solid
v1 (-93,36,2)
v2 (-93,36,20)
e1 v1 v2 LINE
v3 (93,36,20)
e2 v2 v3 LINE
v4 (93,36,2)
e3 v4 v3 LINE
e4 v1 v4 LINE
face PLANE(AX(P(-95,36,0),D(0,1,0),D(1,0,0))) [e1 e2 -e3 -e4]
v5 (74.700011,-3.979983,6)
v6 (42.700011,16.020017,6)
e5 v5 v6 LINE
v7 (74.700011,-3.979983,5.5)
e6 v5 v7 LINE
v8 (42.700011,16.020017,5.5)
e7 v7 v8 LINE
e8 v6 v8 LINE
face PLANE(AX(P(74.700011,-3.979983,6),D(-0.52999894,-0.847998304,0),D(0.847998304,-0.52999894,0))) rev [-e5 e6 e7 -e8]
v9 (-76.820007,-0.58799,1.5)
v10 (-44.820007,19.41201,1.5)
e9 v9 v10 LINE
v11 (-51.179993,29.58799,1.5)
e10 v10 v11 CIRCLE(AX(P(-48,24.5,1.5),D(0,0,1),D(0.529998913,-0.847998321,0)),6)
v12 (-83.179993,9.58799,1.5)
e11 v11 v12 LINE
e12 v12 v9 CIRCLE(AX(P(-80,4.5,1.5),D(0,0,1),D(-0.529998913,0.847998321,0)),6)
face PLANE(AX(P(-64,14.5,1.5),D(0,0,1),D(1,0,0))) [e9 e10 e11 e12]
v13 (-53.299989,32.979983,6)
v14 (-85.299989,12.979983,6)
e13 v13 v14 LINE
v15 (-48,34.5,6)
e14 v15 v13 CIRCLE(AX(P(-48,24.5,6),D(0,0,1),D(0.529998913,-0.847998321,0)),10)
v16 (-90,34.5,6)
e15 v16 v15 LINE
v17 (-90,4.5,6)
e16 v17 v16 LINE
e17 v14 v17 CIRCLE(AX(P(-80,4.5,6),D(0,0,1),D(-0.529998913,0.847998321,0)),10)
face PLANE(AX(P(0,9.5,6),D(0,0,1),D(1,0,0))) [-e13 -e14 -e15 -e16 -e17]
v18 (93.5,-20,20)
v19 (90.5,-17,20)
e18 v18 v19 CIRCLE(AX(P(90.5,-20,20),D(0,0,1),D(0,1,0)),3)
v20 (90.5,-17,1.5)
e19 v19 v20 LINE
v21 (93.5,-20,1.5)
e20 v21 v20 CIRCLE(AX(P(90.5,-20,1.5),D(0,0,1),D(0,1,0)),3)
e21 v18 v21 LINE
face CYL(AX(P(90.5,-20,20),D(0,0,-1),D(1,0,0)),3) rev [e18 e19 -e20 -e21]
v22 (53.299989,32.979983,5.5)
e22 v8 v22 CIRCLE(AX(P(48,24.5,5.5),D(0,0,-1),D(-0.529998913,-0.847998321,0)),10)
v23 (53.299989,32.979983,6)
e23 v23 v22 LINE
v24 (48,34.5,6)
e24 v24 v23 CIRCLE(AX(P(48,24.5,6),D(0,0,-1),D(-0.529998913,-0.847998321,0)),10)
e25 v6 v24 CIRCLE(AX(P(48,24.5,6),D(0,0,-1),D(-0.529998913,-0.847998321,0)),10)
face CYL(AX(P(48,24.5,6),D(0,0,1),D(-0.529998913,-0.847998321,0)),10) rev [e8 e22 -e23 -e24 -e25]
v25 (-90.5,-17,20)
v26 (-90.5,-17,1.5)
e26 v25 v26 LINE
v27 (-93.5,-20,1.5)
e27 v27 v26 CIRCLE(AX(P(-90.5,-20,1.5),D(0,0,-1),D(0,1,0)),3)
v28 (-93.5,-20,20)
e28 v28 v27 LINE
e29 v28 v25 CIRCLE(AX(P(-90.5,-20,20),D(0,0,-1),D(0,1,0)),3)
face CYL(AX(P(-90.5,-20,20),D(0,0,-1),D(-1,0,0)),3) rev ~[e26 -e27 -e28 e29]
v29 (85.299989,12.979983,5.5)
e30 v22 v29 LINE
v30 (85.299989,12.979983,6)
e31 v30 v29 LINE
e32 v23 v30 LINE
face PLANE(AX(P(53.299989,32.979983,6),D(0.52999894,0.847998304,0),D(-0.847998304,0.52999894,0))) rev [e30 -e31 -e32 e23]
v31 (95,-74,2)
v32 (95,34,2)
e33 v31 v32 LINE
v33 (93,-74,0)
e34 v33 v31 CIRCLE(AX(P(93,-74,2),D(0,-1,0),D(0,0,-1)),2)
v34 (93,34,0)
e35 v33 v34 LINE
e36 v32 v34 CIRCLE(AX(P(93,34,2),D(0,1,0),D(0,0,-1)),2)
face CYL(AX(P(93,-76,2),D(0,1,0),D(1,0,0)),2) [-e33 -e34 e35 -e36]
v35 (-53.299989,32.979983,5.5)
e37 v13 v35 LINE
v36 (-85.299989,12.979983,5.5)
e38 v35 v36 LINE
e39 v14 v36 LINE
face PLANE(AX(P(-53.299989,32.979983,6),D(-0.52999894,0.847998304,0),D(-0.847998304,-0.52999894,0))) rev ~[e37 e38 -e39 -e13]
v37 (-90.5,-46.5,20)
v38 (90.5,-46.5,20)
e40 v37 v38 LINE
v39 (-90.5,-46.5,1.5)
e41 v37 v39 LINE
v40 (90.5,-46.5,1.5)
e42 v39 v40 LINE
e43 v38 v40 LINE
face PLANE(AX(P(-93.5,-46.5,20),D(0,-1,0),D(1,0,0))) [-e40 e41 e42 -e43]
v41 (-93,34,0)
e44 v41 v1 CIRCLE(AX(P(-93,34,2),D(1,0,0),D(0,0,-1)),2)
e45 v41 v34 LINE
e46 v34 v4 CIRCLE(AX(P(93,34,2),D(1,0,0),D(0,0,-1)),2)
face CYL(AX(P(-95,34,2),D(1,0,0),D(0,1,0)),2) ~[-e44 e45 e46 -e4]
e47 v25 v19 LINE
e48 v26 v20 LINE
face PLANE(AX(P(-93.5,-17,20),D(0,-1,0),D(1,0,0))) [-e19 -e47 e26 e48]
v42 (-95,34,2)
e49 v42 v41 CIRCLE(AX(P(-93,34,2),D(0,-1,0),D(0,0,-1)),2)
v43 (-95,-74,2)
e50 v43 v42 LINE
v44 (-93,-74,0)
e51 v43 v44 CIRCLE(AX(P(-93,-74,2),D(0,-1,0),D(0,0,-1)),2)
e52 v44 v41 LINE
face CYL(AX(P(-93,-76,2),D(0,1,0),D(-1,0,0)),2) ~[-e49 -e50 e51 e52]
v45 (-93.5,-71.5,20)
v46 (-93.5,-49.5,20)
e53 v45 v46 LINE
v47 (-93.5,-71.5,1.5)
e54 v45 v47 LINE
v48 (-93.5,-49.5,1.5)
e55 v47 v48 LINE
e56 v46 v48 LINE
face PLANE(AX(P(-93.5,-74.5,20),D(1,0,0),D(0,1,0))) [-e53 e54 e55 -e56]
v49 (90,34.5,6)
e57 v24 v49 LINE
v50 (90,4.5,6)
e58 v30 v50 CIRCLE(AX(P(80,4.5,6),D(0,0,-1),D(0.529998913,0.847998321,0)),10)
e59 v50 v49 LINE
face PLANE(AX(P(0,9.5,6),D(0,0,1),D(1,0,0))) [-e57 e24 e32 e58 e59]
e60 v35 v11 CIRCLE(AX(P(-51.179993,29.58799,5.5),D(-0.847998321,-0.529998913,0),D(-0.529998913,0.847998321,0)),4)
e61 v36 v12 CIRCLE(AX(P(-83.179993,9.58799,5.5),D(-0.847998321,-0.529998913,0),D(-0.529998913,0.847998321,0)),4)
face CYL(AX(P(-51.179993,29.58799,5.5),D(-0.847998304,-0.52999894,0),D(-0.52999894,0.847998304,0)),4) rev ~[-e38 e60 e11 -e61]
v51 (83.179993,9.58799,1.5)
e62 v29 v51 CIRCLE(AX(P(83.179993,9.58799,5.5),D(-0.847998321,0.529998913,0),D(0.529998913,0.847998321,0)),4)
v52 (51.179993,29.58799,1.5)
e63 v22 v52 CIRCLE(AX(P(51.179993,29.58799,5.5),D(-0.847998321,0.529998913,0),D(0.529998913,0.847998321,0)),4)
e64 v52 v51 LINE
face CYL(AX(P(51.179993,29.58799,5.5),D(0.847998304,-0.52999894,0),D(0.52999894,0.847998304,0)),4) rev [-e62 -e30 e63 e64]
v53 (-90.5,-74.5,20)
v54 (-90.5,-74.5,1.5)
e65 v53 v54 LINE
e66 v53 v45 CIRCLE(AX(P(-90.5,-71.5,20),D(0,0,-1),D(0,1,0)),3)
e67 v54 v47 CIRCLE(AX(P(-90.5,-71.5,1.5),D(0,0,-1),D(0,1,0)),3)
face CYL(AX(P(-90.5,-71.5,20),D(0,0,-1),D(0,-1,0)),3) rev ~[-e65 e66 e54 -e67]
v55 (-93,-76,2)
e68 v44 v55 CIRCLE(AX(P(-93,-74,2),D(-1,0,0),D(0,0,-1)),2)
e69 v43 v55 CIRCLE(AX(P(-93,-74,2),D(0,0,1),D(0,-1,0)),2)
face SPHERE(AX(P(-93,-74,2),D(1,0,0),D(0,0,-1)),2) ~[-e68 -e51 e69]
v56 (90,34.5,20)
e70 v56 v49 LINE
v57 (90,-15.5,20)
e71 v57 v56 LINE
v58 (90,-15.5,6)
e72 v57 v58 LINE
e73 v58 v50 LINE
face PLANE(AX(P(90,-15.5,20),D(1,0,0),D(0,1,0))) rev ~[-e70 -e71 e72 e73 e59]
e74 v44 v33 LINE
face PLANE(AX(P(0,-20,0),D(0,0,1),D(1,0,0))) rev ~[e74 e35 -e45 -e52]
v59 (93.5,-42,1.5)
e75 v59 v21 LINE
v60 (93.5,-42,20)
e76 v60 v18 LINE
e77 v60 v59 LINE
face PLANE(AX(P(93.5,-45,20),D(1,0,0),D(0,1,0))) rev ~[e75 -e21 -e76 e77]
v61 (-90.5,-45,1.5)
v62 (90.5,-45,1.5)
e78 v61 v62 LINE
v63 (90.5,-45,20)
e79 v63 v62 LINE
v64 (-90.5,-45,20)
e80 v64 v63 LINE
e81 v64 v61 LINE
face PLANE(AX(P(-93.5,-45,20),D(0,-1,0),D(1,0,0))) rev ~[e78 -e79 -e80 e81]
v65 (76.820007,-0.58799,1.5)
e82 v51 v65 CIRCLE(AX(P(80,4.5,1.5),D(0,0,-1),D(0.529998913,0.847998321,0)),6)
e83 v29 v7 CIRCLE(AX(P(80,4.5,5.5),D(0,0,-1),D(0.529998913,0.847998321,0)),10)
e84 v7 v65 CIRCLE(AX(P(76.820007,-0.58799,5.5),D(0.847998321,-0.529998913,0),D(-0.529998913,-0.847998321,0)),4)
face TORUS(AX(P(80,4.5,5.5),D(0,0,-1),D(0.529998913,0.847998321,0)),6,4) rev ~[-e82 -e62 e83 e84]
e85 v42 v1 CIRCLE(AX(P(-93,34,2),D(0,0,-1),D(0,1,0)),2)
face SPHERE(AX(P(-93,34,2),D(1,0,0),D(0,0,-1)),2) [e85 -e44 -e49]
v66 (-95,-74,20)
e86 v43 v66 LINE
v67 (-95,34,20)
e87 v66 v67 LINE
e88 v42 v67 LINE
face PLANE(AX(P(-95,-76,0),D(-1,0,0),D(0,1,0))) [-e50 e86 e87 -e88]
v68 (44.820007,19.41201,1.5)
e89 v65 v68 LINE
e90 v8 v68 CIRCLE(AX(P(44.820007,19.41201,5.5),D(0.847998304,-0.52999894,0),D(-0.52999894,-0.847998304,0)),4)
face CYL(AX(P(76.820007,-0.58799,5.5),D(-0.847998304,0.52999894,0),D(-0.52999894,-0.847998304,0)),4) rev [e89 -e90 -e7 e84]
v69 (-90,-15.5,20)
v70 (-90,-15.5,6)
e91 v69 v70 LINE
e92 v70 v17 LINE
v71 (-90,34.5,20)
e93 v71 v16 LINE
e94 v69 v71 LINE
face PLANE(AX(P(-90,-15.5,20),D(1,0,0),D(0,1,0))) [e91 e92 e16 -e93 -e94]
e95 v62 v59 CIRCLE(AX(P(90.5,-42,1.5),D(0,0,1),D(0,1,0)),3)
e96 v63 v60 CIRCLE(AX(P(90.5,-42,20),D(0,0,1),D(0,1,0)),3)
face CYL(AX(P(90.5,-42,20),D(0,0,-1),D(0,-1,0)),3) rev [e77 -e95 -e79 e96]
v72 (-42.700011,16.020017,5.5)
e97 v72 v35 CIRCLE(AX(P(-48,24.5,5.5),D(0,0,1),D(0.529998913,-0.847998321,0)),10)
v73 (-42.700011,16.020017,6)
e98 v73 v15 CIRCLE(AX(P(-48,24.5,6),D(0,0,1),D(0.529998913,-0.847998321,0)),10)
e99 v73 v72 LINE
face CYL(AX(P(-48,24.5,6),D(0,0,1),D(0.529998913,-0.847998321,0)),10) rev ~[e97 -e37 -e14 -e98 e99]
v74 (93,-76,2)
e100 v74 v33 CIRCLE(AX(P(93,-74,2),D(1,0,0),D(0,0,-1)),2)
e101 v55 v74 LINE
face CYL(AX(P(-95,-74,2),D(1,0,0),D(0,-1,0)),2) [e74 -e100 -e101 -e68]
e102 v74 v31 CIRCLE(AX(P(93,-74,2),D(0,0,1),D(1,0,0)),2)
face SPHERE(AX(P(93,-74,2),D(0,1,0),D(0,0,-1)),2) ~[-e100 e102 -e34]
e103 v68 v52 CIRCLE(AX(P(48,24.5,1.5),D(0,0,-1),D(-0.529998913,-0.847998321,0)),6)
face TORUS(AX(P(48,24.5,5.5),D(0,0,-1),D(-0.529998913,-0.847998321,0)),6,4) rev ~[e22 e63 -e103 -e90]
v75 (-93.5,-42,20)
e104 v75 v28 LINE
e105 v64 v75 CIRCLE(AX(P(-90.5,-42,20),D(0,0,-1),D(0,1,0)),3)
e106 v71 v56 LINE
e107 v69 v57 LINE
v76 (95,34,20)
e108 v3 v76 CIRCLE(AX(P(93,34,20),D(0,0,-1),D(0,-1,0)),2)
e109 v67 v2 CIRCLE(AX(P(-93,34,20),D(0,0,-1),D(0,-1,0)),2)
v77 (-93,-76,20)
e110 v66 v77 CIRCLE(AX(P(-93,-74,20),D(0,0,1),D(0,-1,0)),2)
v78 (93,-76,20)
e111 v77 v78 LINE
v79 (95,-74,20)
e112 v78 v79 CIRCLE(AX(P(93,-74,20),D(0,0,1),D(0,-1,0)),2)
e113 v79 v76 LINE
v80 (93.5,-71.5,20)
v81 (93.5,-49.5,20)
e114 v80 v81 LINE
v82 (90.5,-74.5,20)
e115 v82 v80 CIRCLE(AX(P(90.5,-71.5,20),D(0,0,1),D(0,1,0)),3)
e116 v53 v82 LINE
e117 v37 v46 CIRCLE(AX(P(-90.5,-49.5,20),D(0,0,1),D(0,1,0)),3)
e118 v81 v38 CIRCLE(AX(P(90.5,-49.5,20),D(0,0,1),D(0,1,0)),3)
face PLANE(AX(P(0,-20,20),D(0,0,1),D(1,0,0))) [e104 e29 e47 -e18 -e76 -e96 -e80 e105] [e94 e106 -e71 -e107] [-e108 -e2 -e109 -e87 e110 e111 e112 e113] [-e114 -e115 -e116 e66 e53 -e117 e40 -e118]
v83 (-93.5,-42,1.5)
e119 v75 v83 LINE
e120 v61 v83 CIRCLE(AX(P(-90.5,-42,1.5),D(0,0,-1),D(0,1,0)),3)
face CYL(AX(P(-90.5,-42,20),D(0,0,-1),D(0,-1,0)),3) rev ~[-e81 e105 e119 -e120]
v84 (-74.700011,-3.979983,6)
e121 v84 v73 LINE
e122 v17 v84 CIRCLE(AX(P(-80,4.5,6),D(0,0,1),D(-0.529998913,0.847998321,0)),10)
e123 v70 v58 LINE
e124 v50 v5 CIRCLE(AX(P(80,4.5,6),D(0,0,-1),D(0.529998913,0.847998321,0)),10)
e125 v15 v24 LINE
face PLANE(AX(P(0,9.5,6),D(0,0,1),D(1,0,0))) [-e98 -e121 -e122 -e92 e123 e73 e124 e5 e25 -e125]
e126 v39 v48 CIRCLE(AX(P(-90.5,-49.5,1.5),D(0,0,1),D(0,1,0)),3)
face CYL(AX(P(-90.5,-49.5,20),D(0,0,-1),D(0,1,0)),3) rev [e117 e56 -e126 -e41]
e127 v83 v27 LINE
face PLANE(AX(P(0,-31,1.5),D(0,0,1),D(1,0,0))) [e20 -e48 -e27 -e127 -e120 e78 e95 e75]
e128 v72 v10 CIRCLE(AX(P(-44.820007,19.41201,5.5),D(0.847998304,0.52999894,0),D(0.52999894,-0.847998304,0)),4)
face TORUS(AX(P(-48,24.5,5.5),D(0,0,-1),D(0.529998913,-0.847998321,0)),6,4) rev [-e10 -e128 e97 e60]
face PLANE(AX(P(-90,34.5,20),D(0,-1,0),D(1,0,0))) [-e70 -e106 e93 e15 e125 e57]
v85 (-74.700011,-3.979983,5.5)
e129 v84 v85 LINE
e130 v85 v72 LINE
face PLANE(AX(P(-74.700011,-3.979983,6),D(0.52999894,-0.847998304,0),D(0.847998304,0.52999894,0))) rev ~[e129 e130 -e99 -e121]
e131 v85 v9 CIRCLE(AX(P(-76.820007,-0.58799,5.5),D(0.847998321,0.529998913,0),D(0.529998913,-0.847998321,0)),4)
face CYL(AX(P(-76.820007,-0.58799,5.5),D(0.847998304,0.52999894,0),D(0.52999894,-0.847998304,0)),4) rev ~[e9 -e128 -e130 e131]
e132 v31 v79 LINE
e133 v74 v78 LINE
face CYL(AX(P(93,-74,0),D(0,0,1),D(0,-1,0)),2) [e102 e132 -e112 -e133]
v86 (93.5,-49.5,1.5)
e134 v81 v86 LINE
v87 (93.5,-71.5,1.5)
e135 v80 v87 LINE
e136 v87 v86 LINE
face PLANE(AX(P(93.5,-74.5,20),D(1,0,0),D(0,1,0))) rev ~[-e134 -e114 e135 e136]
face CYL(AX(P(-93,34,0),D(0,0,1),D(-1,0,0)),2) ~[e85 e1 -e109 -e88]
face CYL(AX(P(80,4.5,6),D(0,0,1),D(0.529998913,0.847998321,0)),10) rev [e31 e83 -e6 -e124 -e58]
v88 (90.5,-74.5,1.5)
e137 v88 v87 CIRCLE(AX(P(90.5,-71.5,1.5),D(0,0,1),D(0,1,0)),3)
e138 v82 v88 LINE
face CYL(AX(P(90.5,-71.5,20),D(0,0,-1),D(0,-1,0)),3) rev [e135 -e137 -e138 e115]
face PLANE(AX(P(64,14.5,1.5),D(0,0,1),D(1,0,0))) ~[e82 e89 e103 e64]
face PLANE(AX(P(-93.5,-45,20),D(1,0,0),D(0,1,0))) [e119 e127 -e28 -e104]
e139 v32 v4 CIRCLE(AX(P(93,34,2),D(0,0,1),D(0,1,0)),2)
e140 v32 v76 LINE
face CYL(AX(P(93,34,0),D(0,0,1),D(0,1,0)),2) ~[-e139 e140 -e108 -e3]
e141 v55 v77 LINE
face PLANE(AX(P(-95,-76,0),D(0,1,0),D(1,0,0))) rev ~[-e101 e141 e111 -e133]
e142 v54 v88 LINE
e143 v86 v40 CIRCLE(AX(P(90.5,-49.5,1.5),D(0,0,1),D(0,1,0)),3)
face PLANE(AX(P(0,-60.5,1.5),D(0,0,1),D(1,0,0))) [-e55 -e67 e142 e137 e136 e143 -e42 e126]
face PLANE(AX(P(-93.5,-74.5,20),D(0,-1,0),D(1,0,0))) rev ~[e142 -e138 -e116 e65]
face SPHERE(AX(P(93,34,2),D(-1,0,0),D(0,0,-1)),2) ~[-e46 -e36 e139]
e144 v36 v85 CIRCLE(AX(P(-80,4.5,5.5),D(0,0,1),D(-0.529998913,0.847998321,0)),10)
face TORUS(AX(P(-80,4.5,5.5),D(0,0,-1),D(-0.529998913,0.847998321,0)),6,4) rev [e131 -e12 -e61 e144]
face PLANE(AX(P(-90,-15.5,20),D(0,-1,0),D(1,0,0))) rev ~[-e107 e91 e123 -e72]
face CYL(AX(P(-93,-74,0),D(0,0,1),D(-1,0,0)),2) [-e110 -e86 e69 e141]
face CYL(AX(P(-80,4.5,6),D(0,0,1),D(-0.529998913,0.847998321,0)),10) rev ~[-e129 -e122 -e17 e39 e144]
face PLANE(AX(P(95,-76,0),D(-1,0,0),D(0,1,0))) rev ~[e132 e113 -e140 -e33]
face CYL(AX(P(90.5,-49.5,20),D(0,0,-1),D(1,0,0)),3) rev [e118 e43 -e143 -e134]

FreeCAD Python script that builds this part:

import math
import FreeCAD as App
import Part
import Sketcher


def edges_at(feature, points):
    """Names of the edges that pass closest to the given points."""
    edges = feature.Shape.Edges
    near = lambda p: min(range(len(edges)), key=lambda i: edges[i].distToShape(Part.Vertex(*p))[0])
    return sorted({f"Edge{near(p) + 1}" for p in points})


def add_polygon(sketch, points):
    """Adds a closed chain of lines whose ends are joined by coincident constraints."""
    first, n = sketch.GeometryCount, len(points)
    for a, b in zip(points, points[1:] + points[:1]):
        sketch.addGeometry(Part.LineSegment(App.Vector(*a, 0), App.Vector(*b, 0)), False)
    for i in range(n):
        sketch.addConstraint(Sketcher.Constraint("Coincident", first + i, 2, first + (i + 1) % n, 1))

doc = App.newDocument("Part")
body = doc.addObject("PartDesign::Body", "Body")

sketch1 = doc.addObject("Sketcher::SketchObject", "Sketch")
body.addObject(sketch1)
sketch1.AttachmentSupport = (doc.XY_Plane, [""])
sketch1.MapMode = "FlatFace"
add_polygon(sketch1, [(-95, 56), (-95, -56), (95, -56), (95, 56)])
sketch1.addConstraint([
    Sketcher.Constraint("Vertical", 0),
    Sketcher.Constraint("Horizontal", 1),
    Sketcher.Constraint("Vertical", 2),
    Sketcher.Constraint("Horizontal", 3),
    Sketcher.Constraint("Symmetric", 0, 2, 2, 2, -1, 1),
    Sketcher.Constraint("DistanceX", 1, 1, 1, 2, 190.0),
    Sketcher.Constraint("DistanceY", 0, 2, 0, 1, 112.0),
])
pad1 = doc.addObject("PartDesign::Pad", "Pad")
body.addObject(pad1)
pad1.Profile = sketch1
pad1.Length = 20

sketch2 = doc.addObject("Sketcher::SketchObject", "Sketch001")
body.addObject(sketch2)
sketch2.AttachmentSupport = (doc.XY_Plane, [""])
sketch2.MapMode = "FlatFace"
sketch2.AttachmentOffset = App.Placement(App.Vector(0, 0, 20), App.Rotation())
add_polygon(sketch2, [(-90, 54.5), (-90, 4.5), (90, 4.5), (90, 54.5)])
sketch2.addConstraint([
    Sketcher.Constraint("Vertical", 0),
    Sketcher.Constraint("Horizontal", 1),
    Sketcher.Constraint("Vertical", 2),
    Sketcher.Constraint("Horizontal", 3),
    Sketcher.Constraint("DistanceX", 1, 1, 1, 2, 180.0),
    Sketcher.Constraint("DistanceY", 0, 2, 0, 1, 50.0),
    Sketcher.Constraint("DistanceX", 0, 2, -1, 1, 90.0),
    Sketcher.Constraint("DistanceY", -1, 1, 0, 2, 4.5),
])
pocket1 = doc.addObject("PartDesign::Pocket", "Pocket")
body.addObject(pocket1)
pocket1.Profile = sketch2
pocket1.Length = 14

sketch3 = doc.addObject("Sketcher::SketchObject", "Sketch002")
body.addObject(sketch3)
sketch3.AttachmentSupport = (doc.XY_Plane, [""])
sketch3.MapMode = "FlatFace"
sketch3.AttachmentOffset = App.Placement(App.Vector(0, 0, 20), App.Rotation())
add_polygon(sketch3, [(-93.5, 3), (-93.5, -25), (93.5, -25), (93.5, 3)])
sketch3.addConstraint([
    Sketcher.Constraint("Vertical", 0),
    Sketcher.Constraint("Horizontal", 1),
    Sketcher.Constraint("Vertical", 2),
    Sketcher.Constraint("Horizontal", 3),
    Sketcher.Constraint("DistanceX", 1, 1, 1, 2, 187.0),
    Sketcher.Constraint("DistanceY", 0, 2, 0, 1, 28.0),
    Sketcher.Constraint("DistanceY", 0, 2, -1, 1, 25.0),
    Sketcher.Constraint("DistanceX", 0, 2, -1, 1, 93.5),
])
pocket2 = doc.addObject("PartDesign::Pocket", "Pocket001")
body.addObject(pocket2)
pocket2.Profile = sketch3
pocket2.Length = 18.5
doc.recompute()

linearpattern = doc.addObject("PartDesign::LinearPattern", "LinearPattern")
body.addObject(linearpattern)
linearpattern.Originals = [pocket2]
linearpattern.Direction = (doc.Y_Axis, [""])
linearpattern.Mode = "offset"
linearpattern.Offset = 29.5
linearpattern.Occurrences = 2
linearpattern.Reversed = True
body.Tip = linearpattern
doc.recompute()

fillet = doc.addObject("PartDesign::Fillet", "Fillet")
body.addObject(fillet)
fillet.Base = (linearpattern, edges_at(linearpattern, [
    (93.5, 3, 10.75),
    (93.5, -26.5, 10.75),
    (-93.5, 3, 10.75),
    (-93.5, -26.5, 10.75),
    (-93.5, -25, 10.75),
    (-93.5, -54.5, 10.75),
    (93.5, -25, 10.75),
    (93.5, -54.5, 10.75),
]))
fillet.Radius = 3

sketch4 = doc.addObject("Sketcher::SketchObject", "Sketch003")
body.addObject(sketch4)
sketch4.AttachmentSupport = (doc.XY_Plane, [""])
sketch4.MapMode = "FlatFace"
sketch4.AttachmentOffset = App.Placement(App.Vector(0, 0, 6), App.Rotation())
sketch4.addGeometry([
    Part.ArcOfCircle(Part.Circle(App.Vector(-80, 24.5, 0), App.Vector(0, 0, 1), 10), math.radians(122.005381), math.radians(302.005381)),
    Part.LineSegment(App.Vector(-74.700011, 16.020017, 0), App.Vector(-42.700011, 36.020017, 0)),
    Part.ArcOfCircle(Part.Circle(App.Vector(-48, 44.5, 0), App.Vector(0, 0, 1), 10), math.radians(-57.994619), math.radians(122.005381)),
    Part.LineSegment(App.Vector(-53.299989, 52.979983, 0), App.Vector(-85.299989, 32.979983, 0)),
], False)
sketch4.addConstraint([
    Sketcher.Constraint("Tangent", 0, 2, 1, 1),
    Sketcher.Constraint("Tangent", 1, 2, 2, 1),
    Sketcher.Constraint("Tangent", 2, 2, 3, 1),
    Sketcher.Constraint("Tangent", 3, 2, 0, 1),
    Sketcher.Constraint("Equal", 0, 2),
    Sketcher.Constraint("Radius", 0, 10.0),
    Sketcher.Constraint("DistanceX", 0, 3, -1, 1, 80.0),
    Sketcher.Constraint("DistanceX", 2, 3, -1, 1, 48.0),
    Sketcher.Constraint("DistanceY", 0, 3, 2, 3, 20.0),
    Sketcher.Constraint("DistanceY", -1, 1, 0, 3, 24.5),
])
pocket3 = doc.addObject("PartDesign::Pocket", "Pocket002")
body.addObject(pocket3)
pocket3.Profile = sketch4
pocket3.Length = 4.5
doc.recompute()

mirrored = doc.addObject("PartDesign::Mirrored", "Mirrored")
body.addObject(mirrored)
mirrored.Originals = [pocket3]
mirrored.MirrorPlane = (doc.YZ_Plane, [""])
body.Tip = mirrored
doc.recompute()

fillet2 = doc.addObject("PartDesign::Fillet", "Fillet001")
body.addObject(fillet2)
fillet2.Base = (mirrored, edges_at(mirrored, [
    (88.48, 19.2, 1.5),
    (58.7, 26.02, 1.5),
    (39.52, 49.8, 1.5),
    (69.3, 42.98, 1.5),
    (-88.48, 19.2, 1.5),
    (-58.7, 26.02, 1.5),
    (-39.52, 49.8, 1.5),
    (-69.3, 42.98, 1.5),
]))
fillet2.Radius = 4
doc.recompute()

fillet3 = doc.addObject("PartDesign::Fillet", "Fillet002")
body.addObject(fillet3)
fillet3.Base = (fillet2, edges_at(fillet2, [
    (0, 56, 0),
    (95, 0, 0),
    (0, -56, 0),
    (-95, 0, 0),
    (-95, -56, 10),
    (-95, 56, 10),
    (95, 56, 10),
    (95, -56, 10),
]))
fillet3.Radius = 2
body2 = doc.addObject("PartDesign::Body", "Body001")
doc.recompute()

body.Placement = App.Placement(App.Vector(0, -20, 0), App.Rotation(App.Vector(0, 0, 1), 0))
boolean = doc.addObject("PartDesign::Boolean", "Boolean")
body2.addObject(boolean)
boolean.Type = "Fuse"
boolean.addObjects([body])

doc.recompute()
